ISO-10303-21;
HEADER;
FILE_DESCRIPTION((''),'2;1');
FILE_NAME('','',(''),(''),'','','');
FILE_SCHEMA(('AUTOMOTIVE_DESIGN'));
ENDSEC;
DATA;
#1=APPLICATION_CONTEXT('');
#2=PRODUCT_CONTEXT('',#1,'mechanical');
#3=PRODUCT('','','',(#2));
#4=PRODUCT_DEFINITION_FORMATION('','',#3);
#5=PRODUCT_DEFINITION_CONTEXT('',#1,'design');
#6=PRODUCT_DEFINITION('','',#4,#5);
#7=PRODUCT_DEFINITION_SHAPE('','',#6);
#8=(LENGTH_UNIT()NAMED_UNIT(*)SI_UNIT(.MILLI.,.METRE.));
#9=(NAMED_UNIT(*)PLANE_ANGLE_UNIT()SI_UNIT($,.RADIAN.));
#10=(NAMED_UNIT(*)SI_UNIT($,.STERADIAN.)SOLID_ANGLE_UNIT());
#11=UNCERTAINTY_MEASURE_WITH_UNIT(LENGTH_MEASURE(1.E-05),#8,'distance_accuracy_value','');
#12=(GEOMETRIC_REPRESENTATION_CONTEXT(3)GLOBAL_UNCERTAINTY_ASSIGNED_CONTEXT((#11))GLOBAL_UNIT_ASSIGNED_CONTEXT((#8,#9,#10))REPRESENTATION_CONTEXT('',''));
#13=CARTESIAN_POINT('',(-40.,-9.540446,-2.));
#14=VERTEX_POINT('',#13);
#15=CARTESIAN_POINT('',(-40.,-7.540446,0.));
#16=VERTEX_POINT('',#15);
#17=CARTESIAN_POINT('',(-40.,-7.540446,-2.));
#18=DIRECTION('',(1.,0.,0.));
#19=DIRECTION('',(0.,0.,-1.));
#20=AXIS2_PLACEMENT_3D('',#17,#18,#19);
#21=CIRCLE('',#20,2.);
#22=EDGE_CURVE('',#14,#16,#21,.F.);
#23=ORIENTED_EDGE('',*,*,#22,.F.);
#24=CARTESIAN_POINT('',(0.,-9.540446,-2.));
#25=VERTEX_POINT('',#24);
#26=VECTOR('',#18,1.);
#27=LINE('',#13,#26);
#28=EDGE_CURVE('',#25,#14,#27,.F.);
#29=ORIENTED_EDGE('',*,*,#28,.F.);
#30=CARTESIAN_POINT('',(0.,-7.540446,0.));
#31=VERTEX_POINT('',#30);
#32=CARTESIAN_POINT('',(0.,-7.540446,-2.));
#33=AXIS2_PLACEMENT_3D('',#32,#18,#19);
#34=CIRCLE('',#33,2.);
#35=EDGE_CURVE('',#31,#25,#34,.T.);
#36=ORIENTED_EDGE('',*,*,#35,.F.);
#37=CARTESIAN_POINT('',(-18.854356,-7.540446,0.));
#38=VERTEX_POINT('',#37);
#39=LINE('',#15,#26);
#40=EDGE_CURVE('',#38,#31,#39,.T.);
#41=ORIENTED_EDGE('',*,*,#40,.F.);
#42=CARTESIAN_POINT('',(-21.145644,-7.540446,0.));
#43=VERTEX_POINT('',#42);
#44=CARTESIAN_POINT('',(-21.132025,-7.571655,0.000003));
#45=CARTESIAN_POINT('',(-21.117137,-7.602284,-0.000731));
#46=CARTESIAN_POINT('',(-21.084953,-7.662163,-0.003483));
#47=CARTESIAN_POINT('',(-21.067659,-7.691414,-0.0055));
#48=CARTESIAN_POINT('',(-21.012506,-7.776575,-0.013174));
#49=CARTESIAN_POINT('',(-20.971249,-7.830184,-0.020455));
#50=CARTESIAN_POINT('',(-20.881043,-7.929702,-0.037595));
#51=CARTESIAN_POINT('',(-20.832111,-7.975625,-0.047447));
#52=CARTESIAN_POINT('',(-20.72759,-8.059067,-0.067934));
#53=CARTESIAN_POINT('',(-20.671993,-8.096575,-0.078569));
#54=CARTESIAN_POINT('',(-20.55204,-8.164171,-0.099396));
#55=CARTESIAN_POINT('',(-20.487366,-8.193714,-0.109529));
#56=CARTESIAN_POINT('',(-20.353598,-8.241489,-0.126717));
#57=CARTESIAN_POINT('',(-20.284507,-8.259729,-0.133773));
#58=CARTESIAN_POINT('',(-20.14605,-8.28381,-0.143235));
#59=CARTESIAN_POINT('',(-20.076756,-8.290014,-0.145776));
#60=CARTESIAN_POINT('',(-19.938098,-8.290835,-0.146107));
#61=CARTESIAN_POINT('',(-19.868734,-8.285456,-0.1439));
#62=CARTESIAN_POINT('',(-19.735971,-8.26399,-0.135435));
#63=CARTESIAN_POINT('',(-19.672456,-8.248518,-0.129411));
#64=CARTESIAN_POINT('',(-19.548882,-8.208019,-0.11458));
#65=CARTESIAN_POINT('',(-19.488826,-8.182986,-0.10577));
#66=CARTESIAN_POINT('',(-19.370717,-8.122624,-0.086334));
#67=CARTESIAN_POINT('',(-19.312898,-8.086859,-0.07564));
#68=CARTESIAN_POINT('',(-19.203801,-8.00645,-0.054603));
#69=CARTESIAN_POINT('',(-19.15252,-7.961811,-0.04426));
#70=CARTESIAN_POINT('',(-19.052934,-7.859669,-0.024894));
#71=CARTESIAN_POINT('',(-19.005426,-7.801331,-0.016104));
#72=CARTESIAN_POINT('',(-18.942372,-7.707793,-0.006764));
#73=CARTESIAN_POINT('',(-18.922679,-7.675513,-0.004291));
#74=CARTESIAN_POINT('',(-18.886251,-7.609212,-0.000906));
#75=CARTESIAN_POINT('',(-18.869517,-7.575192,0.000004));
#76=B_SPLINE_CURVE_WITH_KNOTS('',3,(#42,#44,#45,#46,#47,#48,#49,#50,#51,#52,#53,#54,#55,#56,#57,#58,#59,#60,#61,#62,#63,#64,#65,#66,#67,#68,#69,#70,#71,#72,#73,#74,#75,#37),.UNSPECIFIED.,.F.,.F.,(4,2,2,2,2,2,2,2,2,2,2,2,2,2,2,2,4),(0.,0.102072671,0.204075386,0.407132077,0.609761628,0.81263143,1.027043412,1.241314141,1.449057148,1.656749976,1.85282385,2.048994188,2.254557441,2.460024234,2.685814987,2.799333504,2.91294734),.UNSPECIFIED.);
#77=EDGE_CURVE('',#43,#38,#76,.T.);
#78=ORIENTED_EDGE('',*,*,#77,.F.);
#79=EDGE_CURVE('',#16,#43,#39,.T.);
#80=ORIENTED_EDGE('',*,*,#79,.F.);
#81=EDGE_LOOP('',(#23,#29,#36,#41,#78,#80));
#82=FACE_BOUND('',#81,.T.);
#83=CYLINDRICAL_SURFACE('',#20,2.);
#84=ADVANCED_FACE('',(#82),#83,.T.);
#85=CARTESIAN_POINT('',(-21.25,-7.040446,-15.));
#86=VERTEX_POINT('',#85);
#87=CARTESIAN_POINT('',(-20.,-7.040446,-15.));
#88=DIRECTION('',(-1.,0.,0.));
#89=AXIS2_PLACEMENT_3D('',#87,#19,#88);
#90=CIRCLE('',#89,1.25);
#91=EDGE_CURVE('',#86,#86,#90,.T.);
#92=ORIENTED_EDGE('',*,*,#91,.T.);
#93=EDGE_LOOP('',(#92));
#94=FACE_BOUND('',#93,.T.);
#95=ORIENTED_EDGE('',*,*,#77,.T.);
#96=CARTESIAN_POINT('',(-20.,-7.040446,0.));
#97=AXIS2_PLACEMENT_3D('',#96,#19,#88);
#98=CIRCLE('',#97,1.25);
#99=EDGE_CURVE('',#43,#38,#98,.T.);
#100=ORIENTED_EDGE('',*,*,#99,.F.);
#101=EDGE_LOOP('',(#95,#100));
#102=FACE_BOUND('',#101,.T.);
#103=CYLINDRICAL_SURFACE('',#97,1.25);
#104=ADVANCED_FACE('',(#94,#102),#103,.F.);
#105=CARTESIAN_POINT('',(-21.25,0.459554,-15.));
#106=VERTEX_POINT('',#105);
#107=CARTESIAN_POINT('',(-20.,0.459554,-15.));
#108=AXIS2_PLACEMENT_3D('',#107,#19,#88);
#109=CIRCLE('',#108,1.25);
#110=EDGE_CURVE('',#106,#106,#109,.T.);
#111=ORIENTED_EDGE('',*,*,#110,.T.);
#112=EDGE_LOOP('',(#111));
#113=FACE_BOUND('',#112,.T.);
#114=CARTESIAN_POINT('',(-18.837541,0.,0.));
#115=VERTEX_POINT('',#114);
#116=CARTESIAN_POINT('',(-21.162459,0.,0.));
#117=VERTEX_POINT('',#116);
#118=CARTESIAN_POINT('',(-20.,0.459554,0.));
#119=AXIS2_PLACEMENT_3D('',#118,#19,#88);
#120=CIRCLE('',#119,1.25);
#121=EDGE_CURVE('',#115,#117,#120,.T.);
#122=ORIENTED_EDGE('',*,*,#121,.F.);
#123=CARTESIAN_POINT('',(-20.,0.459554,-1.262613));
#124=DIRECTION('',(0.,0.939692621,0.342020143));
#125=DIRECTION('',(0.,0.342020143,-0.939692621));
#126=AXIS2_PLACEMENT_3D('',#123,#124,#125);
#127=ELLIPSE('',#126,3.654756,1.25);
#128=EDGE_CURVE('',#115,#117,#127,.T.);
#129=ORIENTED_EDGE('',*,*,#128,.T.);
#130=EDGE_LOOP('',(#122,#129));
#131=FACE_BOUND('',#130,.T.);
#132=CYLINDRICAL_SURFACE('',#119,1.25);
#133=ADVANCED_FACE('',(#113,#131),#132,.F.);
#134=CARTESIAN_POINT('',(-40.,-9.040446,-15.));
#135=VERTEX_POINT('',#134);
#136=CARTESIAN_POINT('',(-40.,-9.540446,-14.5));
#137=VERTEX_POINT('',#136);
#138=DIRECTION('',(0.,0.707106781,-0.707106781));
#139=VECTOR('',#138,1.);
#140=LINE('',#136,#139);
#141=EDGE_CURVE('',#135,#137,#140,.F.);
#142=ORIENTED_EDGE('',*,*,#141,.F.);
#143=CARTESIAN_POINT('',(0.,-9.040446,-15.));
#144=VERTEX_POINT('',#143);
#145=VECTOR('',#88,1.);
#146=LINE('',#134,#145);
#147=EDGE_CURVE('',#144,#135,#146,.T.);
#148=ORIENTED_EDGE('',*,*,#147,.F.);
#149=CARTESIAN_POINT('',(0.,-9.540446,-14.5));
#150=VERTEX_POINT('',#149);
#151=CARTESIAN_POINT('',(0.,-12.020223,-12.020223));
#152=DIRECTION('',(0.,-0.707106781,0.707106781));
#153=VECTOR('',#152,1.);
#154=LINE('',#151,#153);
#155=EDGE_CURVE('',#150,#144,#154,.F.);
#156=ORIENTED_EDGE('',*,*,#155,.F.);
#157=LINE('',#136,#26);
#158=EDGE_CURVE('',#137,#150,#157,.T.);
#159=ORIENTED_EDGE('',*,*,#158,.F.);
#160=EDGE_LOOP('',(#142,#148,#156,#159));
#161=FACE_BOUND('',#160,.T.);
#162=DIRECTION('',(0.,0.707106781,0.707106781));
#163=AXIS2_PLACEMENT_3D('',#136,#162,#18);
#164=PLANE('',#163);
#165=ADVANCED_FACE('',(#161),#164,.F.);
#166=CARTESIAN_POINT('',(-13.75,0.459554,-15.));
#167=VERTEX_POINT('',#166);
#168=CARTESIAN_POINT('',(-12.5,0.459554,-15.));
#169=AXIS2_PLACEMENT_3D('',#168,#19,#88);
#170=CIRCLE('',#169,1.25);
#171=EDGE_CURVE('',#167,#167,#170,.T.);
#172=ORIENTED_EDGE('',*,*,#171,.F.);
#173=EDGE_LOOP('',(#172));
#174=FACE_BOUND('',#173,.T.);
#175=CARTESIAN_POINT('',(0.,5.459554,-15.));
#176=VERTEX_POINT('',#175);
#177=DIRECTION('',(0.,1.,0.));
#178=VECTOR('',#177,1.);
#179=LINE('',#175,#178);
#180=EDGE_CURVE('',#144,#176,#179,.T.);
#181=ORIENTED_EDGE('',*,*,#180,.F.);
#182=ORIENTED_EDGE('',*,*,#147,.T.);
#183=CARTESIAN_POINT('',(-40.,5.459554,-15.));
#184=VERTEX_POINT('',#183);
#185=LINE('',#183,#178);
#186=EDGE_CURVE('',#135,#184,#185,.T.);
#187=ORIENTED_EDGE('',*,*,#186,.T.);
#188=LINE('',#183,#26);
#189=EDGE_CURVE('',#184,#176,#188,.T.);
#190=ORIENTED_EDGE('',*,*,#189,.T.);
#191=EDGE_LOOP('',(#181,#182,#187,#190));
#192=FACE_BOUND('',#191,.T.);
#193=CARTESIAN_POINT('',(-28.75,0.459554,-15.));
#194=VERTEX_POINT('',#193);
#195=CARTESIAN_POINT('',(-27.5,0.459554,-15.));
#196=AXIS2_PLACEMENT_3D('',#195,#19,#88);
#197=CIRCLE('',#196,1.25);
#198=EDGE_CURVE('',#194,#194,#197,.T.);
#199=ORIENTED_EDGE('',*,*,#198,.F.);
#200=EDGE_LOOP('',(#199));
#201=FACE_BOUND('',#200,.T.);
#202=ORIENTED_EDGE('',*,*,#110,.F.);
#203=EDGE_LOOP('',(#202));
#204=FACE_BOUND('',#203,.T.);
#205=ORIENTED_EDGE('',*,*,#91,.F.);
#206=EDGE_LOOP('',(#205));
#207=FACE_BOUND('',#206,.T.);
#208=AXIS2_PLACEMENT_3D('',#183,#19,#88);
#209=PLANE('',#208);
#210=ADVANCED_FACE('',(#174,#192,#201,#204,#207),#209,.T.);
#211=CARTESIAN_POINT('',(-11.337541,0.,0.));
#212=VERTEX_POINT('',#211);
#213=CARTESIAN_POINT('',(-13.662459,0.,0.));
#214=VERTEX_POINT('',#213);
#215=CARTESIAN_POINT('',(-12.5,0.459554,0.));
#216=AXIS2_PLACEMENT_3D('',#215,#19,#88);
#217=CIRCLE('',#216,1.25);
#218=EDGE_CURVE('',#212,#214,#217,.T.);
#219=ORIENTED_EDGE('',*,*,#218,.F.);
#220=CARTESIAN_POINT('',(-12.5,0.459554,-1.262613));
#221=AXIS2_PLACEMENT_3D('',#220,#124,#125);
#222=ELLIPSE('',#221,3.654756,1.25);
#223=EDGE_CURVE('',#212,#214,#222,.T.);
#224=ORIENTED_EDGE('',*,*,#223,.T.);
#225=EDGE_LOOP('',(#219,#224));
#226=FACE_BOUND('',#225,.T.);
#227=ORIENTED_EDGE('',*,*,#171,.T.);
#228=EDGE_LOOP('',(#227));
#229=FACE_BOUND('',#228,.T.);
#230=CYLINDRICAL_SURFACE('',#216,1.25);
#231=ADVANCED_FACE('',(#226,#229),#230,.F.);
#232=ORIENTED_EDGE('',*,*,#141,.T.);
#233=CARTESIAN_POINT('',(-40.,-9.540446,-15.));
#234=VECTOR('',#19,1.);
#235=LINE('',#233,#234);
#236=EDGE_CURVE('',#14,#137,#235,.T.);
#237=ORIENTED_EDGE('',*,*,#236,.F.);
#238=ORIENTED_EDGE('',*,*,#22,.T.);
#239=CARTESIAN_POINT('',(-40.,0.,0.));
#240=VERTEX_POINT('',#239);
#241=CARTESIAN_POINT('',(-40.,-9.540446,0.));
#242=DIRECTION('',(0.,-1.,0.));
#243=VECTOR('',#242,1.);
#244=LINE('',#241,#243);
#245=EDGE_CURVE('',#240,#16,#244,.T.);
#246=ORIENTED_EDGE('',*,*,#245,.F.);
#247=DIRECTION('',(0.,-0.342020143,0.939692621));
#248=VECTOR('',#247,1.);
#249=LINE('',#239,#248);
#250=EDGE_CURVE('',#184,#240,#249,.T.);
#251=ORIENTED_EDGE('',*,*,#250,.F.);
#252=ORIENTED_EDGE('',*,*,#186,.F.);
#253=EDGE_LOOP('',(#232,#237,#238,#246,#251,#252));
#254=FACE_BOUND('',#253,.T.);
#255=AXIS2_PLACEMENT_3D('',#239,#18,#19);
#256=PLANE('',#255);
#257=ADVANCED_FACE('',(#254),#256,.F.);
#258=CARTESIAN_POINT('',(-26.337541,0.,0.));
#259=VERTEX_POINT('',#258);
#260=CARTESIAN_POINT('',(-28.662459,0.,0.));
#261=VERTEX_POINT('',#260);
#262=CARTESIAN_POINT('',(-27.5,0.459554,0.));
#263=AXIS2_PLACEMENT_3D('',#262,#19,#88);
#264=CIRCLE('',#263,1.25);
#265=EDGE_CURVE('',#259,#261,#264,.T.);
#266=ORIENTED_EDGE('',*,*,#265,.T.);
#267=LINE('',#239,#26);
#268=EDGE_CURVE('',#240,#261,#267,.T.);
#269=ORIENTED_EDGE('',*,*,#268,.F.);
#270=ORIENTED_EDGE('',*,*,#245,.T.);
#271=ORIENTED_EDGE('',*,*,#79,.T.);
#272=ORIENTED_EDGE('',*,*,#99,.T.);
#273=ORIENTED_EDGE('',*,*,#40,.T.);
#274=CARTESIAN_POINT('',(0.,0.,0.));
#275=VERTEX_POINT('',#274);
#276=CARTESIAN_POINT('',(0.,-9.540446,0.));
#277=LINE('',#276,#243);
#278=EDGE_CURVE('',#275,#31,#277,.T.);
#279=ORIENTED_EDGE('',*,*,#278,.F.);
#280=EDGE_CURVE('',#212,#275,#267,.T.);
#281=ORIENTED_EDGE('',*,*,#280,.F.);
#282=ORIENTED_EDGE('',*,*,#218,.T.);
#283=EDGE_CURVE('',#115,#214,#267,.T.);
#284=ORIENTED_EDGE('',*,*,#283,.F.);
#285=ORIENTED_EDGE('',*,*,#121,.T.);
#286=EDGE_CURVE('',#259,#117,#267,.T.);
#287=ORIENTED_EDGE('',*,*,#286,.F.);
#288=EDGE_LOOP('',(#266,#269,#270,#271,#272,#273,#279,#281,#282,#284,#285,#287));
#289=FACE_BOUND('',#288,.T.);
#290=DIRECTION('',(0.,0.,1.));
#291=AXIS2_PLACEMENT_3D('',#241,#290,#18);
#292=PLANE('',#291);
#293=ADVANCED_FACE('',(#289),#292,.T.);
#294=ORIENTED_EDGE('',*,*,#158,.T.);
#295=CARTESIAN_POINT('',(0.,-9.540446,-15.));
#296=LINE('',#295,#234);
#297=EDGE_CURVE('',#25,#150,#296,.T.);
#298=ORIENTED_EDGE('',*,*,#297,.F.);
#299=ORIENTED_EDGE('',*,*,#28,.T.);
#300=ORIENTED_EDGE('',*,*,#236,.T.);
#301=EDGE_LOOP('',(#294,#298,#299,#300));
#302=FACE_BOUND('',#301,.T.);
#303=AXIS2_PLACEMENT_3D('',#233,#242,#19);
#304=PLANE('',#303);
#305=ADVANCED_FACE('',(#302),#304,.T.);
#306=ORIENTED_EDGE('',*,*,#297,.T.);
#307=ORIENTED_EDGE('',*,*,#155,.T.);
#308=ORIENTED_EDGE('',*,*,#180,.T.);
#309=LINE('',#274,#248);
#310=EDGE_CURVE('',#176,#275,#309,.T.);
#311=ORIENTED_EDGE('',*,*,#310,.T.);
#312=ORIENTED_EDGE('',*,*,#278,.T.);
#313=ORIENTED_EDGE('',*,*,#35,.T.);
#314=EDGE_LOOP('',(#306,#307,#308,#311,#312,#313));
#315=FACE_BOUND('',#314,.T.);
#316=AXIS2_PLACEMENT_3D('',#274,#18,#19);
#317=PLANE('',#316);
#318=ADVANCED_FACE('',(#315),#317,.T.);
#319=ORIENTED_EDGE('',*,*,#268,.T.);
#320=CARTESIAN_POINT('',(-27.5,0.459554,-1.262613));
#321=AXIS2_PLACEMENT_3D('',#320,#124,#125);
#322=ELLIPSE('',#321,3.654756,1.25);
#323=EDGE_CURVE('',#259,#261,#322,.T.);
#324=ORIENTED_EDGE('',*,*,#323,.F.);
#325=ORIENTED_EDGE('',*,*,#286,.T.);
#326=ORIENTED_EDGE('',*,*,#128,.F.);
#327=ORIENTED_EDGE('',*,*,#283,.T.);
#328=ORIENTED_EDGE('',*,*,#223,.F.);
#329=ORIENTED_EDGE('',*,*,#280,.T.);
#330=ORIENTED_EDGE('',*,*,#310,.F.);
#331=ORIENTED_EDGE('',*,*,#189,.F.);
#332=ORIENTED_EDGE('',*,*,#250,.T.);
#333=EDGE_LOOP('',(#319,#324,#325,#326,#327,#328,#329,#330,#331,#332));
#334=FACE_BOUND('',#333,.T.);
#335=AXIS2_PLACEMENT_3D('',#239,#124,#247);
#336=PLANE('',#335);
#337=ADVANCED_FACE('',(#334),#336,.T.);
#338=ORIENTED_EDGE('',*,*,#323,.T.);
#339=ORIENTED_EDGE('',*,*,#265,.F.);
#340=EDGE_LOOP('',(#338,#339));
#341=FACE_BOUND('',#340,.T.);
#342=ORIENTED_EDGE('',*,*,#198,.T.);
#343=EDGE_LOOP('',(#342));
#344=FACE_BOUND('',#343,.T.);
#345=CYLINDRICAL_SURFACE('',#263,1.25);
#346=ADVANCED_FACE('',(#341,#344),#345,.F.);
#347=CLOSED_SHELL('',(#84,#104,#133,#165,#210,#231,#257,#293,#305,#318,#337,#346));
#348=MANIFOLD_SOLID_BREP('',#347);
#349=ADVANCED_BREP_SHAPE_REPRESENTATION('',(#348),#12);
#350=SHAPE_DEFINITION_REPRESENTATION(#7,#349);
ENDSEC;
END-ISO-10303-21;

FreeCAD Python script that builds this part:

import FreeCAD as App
import Part
import Sketcher
Q = App.Units.Quantity


def edges_at(feature, points):
    """Names of the edges that pass closest to the given points."""
    edges = feature.Shape.Edges
    near = lambda p: min(range(len(edges)), key=lambda i: edges[i].distToShape(Part.Vertex(*p))[0])
    return sorted({f"Edge{near(p) + 1}" for p in points})

doc = App.newDocument("Part")
body = doc.addObject("PartDesign::Body", "Body")

sketch1 = body.newObject("Sketcher::SketchObject", "Sketch")
sketch1.AttachmentSupport = (doc.getObject("YZ_Plane"), [""])
sketch1.MapMode = "FlatFace"
sketch1.addGeometry([
    Part.LineSegment(App.Vector(5.459554, -15, 0), App.Vector(0, 0, 0)),
    Part.LineSegment(App.Vector(0, 0, 0), App.Vector(-9.540446, 0, 0)),
    Part.LineSegment(App.Vector(-9.540446, 0, 0), App.Vector(-9.540446, -15, 0)),
    Part.LineSegment(App.Vector(-9.540446, -15, 0), App.Vector(5.459554, -15, 0)),
], False)
sketch1.addConstraint([
    Sketcher.Constraint("Coincident", 0, 2, 1, 1),
    Sketcher.Constraint("Coincident", 1, 2, 2, 1),
    Sketcher.Constraint("Coincident", 2, 2, 3, 1),
    Sketcher.Constraint("Coincident", 3, 2, 0, 1),
    Sketcher.Constraint("Horizontal", 1),
    Sketcher.Constraint("Vertical", 2),
    Sketcher.Constraint("Horizontal", 3),
    Sketcher.Constraint("Coincident", 0, 2, -1, 1),
    Sketcher.Constraint("Equal", 3, 2),
    Sketcher.Constraint("DistanceX", 3, 1, 3, 2, 15.0),
    Sketcher.Constraint("Angle", 0, Q("110 deg")),
])
pad1 = body.newObject("PartDesign::Pad", "Pad")
pad1.Profile = sketch1
pad1.Length = 40
pad1.Reversed = True
doc.recompute()

fillet = body.newObject("PartDesign::Fillet", "Fillet")
fillet.Base = (pad1, edges_at(pad1, [(-20, -9.54, 0)]))
fillet.Radius = 2
doc.recompute()

chamfer = body.newObject("PartDesign::Chamfer", "Chamfer")
chamfer.Base = (fillet, edges_at(fillet, [(-20, -9.54, -15)]))
chamfer.Size = 0.5

sketch2 = body.newObject("Sketcher::SketchObject", "Sketch001")
sketch2.AttachmentSupport = (doc.getObject("XY_Plane"), [""])
sketch2.MapMode = "FlatFace"
sketch2.AttachmentOffset = App.Placement(App.Vector(0, 0, -15), App.Rotation())
sketch2.addGeometry([
    Part.Circle(App.Vector(-20, 0.459554, 0), App.Vector(0, 0, 1), 1.25),
    Part.Circle(App.Vector(-27.5, 0.459554, 0), App.Vector(0, 0, 1), 1.25),
    Part.Circle(App.Vector(-12.5, 0.459554, 0), App.Vector(0, 0, 1), 1.25),
    Part.Circle(App.Vector(-20, -7.040446, 0), App.Vector(0, 0, 1), 1.25),
], False)
sketch2.addConstraint([
    Sketcher.Constraint("Equal", 0, 1),
    Sketcher.Constraint("Equal", 1, 2),
    Sketcher.Constraint("Equal", 2, 3),
    Sketcher.Constraint("Horizontal", 0, 3, 1, 3),
    Sketcher.Constraint("Horizontal", 1, 3, 2, 3),
    Sketcher.Constraint("Vertical", 0, 3, 3, 3),
    Sketcher.Constraint("Diameter", 0, 2.5),
    Sketcher.Constraint("DistanceX", 0, 3, -1, 1, 20.0),
    Sketcher.Constraint("DistanceX", 1, 3, 2, 3, 15.0),
    Sketcher.Constraint("DistanceX", 1, 3, -1, 1, 27.5),
    Sketcher.Constraint("DistanceY", 3, 3, 0, 3, 7.5),
    Sketcher.Constraint("DistanceY", -1, 1, 0, 3, 0.459554),
])
pocket1 = body.newObject("PartDesign::Pocket", "Pocket")
pocket1.Profile = sketch2
pocket1.Type = "ThroughAll"
pocket1.Reversed = True

doc.recompute()
